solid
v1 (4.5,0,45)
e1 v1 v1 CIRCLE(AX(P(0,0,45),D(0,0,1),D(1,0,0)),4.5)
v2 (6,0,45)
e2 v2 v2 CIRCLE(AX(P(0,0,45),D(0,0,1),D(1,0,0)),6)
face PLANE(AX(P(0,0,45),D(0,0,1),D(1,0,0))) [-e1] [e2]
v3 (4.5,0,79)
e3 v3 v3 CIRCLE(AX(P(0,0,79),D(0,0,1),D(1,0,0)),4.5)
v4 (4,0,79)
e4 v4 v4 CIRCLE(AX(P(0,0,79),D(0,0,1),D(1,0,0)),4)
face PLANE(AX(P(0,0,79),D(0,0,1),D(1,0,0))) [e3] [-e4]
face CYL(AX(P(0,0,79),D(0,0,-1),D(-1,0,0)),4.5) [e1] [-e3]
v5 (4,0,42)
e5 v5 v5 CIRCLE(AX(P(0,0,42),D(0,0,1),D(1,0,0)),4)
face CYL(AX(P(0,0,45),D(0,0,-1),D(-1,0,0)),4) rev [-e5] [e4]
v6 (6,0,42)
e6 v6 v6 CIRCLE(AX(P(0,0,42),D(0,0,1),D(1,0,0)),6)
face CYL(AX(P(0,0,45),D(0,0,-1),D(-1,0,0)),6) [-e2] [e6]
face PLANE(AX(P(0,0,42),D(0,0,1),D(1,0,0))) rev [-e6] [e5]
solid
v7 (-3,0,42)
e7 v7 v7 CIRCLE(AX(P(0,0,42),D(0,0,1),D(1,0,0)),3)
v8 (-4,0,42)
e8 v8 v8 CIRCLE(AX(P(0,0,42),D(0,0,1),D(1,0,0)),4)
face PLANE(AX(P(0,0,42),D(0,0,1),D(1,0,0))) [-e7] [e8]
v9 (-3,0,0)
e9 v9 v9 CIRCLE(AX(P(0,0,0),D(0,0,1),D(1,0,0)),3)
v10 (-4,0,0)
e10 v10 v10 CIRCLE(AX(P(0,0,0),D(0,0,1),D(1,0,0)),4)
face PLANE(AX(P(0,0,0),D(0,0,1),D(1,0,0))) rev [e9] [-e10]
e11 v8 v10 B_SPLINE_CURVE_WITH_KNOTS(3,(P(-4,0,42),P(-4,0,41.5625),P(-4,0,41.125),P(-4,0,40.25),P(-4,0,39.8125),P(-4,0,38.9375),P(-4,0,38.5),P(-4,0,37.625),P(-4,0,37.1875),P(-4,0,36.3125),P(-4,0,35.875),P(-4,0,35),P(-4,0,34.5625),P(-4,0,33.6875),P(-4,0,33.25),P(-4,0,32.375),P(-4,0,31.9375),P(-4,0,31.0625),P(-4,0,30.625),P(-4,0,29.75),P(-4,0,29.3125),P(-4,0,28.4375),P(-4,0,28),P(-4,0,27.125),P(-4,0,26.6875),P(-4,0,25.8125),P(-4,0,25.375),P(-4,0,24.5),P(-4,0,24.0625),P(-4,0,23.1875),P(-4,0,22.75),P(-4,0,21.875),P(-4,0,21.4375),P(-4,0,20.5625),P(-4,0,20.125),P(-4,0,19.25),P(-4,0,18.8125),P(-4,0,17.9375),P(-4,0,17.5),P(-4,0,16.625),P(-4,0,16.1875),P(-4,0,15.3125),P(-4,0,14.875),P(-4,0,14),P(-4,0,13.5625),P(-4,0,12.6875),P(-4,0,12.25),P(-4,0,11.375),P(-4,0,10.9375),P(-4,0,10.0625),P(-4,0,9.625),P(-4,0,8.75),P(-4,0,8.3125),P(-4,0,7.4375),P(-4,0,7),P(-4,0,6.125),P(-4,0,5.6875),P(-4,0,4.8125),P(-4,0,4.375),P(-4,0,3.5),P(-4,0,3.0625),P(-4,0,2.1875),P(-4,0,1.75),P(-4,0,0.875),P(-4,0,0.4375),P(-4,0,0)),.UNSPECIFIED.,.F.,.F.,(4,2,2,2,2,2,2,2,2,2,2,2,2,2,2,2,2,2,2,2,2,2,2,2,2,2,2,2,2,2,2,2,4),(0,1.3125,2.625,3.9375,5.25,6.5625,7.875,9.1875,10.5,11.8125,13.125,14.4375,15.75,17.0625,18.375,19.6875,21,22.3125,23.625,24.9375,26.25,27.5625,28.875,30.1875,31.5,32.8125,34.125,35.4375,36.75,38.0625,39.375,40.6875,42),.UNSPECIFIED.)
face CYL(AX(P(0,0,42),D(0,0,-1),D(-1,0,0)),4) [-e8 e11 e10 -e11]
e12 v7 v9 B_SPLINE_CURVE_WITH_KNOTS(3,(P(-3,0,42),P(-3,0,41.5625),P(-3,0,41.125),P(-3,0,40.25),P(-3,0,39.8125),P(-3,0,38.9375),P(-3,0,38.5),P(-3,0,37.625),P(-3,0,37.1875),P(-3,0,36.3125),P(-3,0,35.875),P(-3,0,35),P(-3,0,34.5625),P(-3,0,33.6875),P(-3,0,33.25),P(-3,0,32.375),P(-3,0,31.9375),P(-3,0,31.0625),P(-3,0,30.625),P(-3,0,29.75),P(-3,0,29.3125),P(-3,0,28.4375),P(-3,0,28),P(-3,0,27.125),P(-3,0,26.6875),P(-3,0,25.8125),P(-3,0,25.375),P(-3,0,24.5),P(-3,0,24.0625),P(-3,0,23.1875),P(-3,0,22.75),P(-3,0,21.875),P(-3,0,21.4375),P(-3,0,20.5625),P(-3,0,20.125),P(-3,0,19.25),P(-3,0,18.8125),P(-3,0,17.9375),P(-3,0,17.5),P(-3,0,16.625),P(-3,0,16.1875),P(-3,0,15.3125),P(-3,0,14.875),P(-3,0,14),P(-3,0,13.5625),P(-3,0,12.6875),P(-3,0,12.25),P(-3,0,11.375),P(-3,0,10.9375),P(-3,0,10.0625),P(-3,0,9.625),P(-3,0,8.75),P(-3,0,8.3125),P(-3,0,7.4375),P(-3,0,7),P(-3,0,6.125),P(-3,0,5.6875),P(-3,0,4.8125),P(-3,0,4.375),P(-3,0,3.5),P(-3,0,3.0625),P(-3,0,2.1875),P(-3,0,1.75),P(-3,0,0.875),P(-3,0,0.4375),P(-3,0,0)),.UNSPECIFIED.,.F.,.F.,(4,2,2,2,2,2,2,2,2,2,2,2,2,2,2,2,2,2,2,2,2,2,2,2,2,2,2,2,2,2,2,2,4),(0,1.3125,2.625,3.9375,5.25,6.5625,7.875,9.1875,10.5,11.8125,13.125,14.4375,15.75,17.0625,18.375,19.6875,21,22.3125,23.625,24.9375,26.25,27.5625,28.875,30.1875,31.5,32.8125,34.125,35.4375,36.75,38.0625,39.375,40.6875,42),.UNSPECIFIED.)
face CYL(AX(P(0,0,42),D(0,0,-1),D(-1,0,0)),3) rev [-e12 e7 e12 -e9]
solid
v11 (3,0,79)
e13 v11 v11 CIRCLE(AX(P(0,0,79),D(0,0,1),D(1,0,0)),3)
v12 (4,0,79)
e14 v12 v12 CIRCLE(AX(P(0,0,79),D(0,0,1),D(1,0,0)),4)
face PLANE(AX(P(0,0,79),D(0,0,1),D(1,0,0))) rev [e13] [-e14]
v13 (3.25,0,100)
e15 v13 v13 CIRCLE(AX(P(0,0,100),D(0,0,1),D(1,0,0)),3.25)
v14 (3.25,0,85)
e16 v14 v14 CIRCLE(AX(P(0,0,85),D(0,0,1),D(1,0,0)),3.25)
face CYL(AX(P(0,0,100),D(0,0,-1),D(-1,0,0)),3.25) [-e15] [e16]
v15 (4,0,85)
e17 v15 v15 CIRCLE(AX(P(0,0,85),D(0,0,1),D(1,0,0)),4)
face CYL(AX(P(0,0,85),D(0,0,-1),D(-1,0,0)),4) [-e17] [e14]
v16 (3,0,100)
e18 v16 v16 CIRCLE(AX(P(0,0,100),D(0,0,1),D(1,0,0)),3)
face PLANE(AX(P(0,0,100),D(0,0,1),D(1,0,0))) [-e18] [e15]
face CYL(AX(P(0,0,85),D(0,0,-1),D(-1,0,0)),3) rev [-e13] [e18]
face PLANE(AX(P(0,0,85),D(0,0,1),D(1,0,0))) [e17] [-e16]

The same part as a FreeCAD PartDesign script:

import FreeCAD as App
import Part
import Sketcher

V = App.Vector

doc = App.newDocument("Part")
params = doc.addObject("Spreadsheet::Sheet", "Params")
for row, (alias, value) in enumerate([
    ("sketch1_diameter", "8 mm"),
    ("sketch1_diameter2", "6 mm"),
    ("pad1_length", "42 mm"),
    ("sketch2_diameter", "12 mm"),
    ("sketch2_diameter2", "8 mm"),
    ("pad2_length", "3 mm"),
    ("sketch3_diameter", "9 mm"),
    ("sketch3_diameter2", "8 mm"),
    ("pad3_length", "34 mm"),
    ("sketch4_diameter", "8 mm"),
    ("sketch4_diameter2", "6 mm"),
    ("pad4_length", "6 mm"),
    ("sketch5_diameter", "6 mm"),
    ("sketch5_diameter2", "6.5 mm"),
    ("pad5_length", "15 mm"),
], start=1):
    params.set(f"A{row}", alias)
    params.set(f"B{row}", "=" + value)
    params.setAlias(f"B{row}", alias)

body = doc.addObject("PartDesign::Body", "Body")

sketch1 = doc.addObject("Sketcher::SketchObject", "Sketch")
body.addObject(sketch1)
sketch1.AttachmentSupport = (doc.XY_Plane, [""])
sketch1.MapMode = "FlatFace"
sketch1.addGeometry(Part.Circle(V(0, 0, 0), V(0, 0, 1), 4), False)
sketch1.addGeometry(Part.Circle(V(0, 0, 0), V(0, 0, 1), 3), False)
sketch1.addConstraint(Sketcher.Constraint("Coincident", 0, 3, -1, 1))
sketch1.addConstraint(Sketcher.Constraint("Coincident", 1, 3, -1, 1))
sketch1.addConstraint(Sketcher.Constraint("Diameter", 0, 8.0))
sketch1.addConstraint(Sketcher.Constraint("Diameter", 1, 6.0))
sketch1.setExpression("Constraints[2]", "Params.sketch1_diameter")
sketch1.setExpression("Constraints[3]", "Params.sketch1_diameter2")
pad1 = doc.addObject("PartDesign::Pad", "Pad")
body.addObject(pad1)
pad1.Profile = sketch1
pad1.setExpression("Length", "Params.pad1_length")
body2 = doc.addObject("PartDesign::Body", "Body001")

sketch2 = doc.addObject("Sketcher::SketchObject", "Sketch001")
body2.addObject(sketch2)
sketch2.AttachmentSupport = (doc.getObject("XY_Plane001"), [""])
sketch2.MapMode = "FlatFace"
sketch2.AttachmentOffset = App.Placement(V(0, 0, 42), App.Rotation())
sketch2.addGeometry(Part.Circle(V(0, 0, 0), V(0, 0, 1), 6), False)
sketch2.addGeometry(Part.Circle(V(0, 0, 0), V(0, 0, 1), 4), False)
sketch2.addConstraint(Sketcher.Constraint("Coincident", 0, 3, -1, 1))
sketch2.addConstraint(Sketcher.Constraint("Coincident", 1, 3, -1, 1))
sketch2.addConstraint(Sketcher.Constraint("Diameter", 0, 12.0))
sketch2.addConstraint(Sketcher.Constraint("Diameter", 1, 8.0))
sketch2.setExpression("Constraints[2]", "Params.sketch2_diameter")
sketch2.setExpression("Constraints[3]", "Params.sketch2_diameter2")
pad2 = doc.addObject("PartDesign::Pad", "Pad001")
body2.addObject(pad2)
pad2.Profile = sketch2
pad2.setExpression("Length", "Params.pad2_length")

sketch3 = doc.addObject("Sketcher::SketchObject", "Sketch002")
body2.addObject(sketch3)
sketch3.AttachmentSupport = (doc.getObject("XY_Plane001"), [""])
sketch3.MapMode = "FlatFace"
sketch3.AttachmentOffset = App.Placement(V(0, 0, 45), App.Rotation())
sketch3.addGeometry(Part.Circle(V(0, 0, 0), V(0, 0, 1), 4.5), False)
sketch3.addGeometry(Part.Circle(V(0, 0, 0), V(0, 0, 1), 4), False)
sketch3.addConstraint(Sketcher.Constraint("Coincident", 0, 3, -1, 1))
sketch3.addConstraint(Sketcher.Constraint("Coincident", 1, 3, -1, 1))
sketch3.addConstraint(Sketcher.Constraint("Diameter", 0, 9.0))
sketch3.addConstraint(Sketcher.Constraint("Diameter", 1, 8.0))
sketch3.setExpression("Constraints[2]", "Params.sketch3_diameter")
sketch3.setExpression("Constraints[3]", "Params.sketch3_diameter2")
pad3 = doc.addObject("PartDesign::Pad", "Pad002")
body2.addObject(pad3)
pad3.Profile = sketch3
pad3.setExpression("Length", "Params.pad3_length")
body3 = doc.addObject("PartDesign::Body", "Body002")

sketch4 = doc.addObject("Sketcher::SketchObject", "Sketch003")
body3.addObject(sketch4)
sketch4.AttachmentSupport = (doc.getObject("XY_Plane002"), [""])
sketch4.MapMode = "FlatFace"
sketch4.AttachmentOffset = App.Placement(V(0, 0, 79), App.Rotation())
sketch4.addGeometry(Part.Circle(V(0, 0, 0), V(0, 0, 1), 4), False)
sketch4.addGeometry(Part.Circle(V(0, 0, 0), V(0, 0, 1), 3), False)
sketch4.addConstraint(Sketcher.Constraint("Coincident", 0, 3, -1, 1))
sketch4.addConstraint(Sketcher.Constraint("Coincident", 1, 3, -1, 1))
sketch4.addConstraint(Sketcher.Constraint("Diameter", 0, 8.0))
sketch4.addConstraint(Sketcher.Constraint("Diameter", 1, 6.0))
sketch4.setExpression("Constraints[2]", "Params.sketch4_diameter")
sketch4.setExpression("Constraints[3]", "Params.sketch4_diameter2")
pad4 = doc.addObject("PartDesign::Pad", "Pad003")
body3.addObject(pad4)
pad4.Profile = sketch4
pad4.setExpression("Length", "Params.pad4_length")

sketch5 = doc.addObject("Sketcher::SketchObject", "Sketch004")
body3.addObject(sketch5)
sketch5.AttachmentSupport = (doc.getObject("XY_Plane002"), [""])
sketch5.MapMode = "FlatFace"
sketch5.AttachmentOffset = App.Placement(V(0, 0, 85), App.Rotation())
sketch5.addGeometry(Part.Circle(V(0, 0, 0), V(0, 0, 1), 3.2), False)
sketch5.addGeometry(Part.Circle(V(0, 0, 0), V(0, 0, 1), 3), False)
sketch5.addConstraint(Sketcher.Constraint("Coincident", 0, 3, -1, 1))
sketch5.addConstraint(Sketcher.Constraint("Coincident", 1, 3, -1, 1))
sketch5.addConstraint(Sketcher.Constraint("Diameter", 1, 6.0))
sketch5.addConstraint(Sketcher.Constraint("Diameter", 0, 6.5))
sketch5.setExpression("Constraints[2]", "Params.sketch5_diameter")
sketch5.setExpression("Constraints[3]", "Params.sketch5_diameter2")
pad5 = doc.addObject("PartDesign::Pad", "Pad004")
body3.addObject(pad5)
pad5.Profile = sketch5
pad5.setExpression("Length", "Params.pad5_length")

doc.recompute()
